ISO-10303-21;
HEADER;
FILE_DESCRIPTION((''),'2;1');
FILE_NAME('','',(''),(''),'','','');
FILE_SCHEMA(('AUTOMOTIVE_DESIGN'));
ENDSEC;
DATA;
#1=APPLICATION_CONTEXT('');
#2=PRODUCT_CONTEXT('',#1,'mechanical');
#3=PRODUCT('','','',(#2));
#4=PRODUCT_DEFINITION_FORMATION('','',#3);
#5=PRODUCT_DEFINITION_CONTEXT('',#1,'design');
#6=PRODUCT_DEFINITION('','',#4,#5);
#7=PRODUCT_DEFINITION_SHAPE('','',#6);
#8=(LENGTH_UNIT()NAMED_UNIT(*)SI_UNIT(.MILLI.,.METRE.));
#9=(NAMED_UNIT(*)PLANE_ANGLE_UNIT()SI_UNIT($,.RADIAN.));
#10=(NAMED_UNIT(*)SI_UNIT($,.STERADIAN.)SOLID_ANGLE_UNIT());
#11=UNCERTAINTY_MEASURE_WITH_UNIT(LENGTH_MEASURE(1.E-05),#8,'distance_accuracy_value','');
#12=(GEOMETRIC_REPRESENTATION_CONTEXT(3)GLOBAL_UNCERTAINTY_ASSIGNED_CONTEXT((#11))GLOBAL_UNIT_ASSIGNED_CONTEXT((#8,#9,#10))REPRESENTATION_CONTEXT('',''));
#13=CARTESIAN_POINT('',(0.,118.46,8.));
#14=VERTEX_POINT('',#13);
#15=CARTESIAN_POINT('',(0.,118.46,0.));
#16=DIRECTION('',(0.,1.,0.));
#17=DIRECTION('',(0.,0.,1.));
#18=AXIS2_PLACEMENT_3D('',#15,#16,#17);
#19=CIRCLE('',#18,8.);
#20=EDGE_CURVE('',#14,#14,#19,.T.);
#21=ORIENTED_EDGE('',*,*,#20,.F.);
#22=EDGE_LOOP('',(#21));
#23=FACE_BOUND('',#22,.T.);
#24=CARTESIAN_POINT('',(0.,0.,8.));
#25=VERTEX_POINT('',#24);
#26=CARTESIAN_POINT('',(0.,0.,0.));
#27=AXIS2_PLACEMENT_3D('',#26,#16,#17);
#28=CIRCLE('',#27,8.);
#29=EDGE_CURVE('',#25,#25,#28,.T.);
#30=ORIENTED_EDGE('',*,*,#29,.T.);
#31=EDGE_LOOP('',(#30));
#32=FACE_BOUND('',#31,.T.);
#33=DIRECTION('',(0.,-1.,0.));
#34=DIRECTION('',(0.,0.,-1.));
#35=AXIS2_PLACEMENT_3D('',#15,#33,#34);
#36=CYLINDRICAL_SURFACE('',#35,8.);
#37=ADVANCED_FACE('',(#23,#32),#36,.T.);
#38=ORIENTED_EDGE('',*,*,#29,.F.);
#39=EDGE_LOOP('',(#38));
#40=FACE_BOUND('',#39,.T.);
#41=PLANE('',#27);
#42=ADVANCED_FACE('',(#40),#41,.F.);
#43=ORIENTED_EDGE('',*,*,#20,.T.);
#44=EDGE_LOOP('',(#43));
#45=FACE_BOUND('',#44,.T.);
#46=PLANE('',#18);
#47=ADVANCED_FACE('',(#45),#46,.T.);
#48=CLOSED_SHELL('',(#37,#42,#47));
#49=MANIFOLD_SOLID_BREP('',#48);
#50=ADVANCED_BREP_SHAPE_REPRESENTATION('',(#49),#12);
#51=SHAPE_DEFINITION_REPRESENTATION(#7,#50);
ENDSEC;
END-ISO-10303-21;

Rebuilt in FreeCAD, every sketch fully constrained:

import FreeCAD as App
import Part
import Sketcher
Q = App.Units.Quantity

doc = App.newDocument("Part")
body = doc.addObject("PartDesign::Body", "Body")

# Sketch on XZ plane
sketch1 = doc.addObject("Sketcher::SketchObject", "Sketch")
body.addObject(sketch1)
sketch1.AttachmentSupport = (doc.XZ_Plane, [""])
sketch1.MapMode = "FlatFace"
sketch1.addGeometry(Part.Circle(App.Vector(0, 0, 0), App.Vector(0, 0, 1), 8), False)
sketch1.addConstraint(Sketcher.Constraint("Coincident", 0, 3, -1, 1))
sketch1.addConstraint(Sketcher.Constraint("Diameter", 0, Q("16 mm")))
pad1 = doc.addObject("PartDesign::Pad", "Pad")
body.addObject(pad1)
pad1.Profile = sketch1
pad1.Length = 118.46
pad1.Reversed = True

doc.recompute()
